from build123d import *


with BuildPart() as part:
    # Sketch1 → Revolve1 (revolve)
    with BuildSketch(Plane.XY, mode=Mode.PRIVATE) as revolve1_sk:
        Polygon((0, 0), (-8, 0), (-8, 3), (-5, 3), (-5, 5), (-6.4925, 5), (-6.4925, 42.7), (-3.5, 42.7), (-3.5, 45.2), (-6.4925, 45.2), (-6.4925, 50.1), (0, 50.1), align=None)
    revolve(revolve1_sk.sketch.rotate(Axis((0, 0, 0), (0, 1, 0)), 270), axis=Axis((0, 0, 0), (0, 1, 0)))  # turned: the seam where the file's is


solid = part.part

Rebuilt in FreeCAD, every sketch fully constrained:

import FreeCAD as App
import Part
import Sketcher

V = App.Vector
Q = App.Units.Quantity


def add_polygon(sketch, points):
    """Adds a closed chain of lines whose ends are joined by coincident constraints."""
    first, n = sketch.GeometryCount, len(points)
    for a, b in zip(points, points[1:] + points[:1]):
        sketch.addGeometry(Part.LineSegment(App.Vector(*a, 0), App.Vector(*b, 0)), False)
    for i in range(n):
        sketch.addConstraint(Sketcher.Constraint("Coincident", first + i, 2, first + (i + 1) % n, 1))

doc = App.newDocument("Part")
params = doc.addObject("Spreadsheet::Sheet", "Params")
for row, (alias, value) in enumerate([
    ("sketch1_width", "8 mm"),
    ("sketch1_width2", "3 mm"),
    ("sketch1_height", "2 mm"),
    ("sketch1_height2", "50.1 mm"),
    ("sketch1_height3", "4.9 mm"),
    ("revolution_angle", "360 deg"),
], start=1):
    params.set(f"A{row}", alias)
    params.set(f"B{row}", "=" + value)
    params.setAlias(f"B{row}", alias)

body = doc.addObject("PartDesign::Body", "Body")

sketch1 = body.newObject("Sketcher::SketchObject", "Sketch")
sketch1.AttachmentSupport = (doc.getObject("XY_Plane"), [""])
sketch1.MapMode = "FlatFace"
add_polygon(sketch1, [(-8, 0), (0, 0), (0, 50.1), (-6.5, 50.1), (-6.5, 45.2), (-3.5, 45.2), (-3.5, 42.7), (-6.5, 42.7), (-6.5, 5), (-5, 5), (-5, 3), (-8, 3)])
sketch1.addConstraint([
    Sketcher.Constraint("Horizontal", 0),
    Sketcher.Constraint("Vertical", 1),
    Sketcher.Constraint("Horizontal", 2),
    Sketcher.Constraint("Vertical", 3),
    Sketcher.Constraint("Horizontal", 4),
    Sketcher.Constraint("Vertical", 5),
    Sketcher.Constraint("Horizontal", 6),
    Sketcher.Constraint("Vertical", 7),
    Sketcher.Constraint("Horizontal", 8),
    Sketcher.Constraint("Vertical", 9),
    Sketcher.Constraint("Horizontal", 10),
    Sketcher.Constraint("Vertical", 11),
    Sketcher.Constraint("Coincident", 0, 2, -1, 1),
    Sketcher.Constraint("Vertical", 3, 2, 6, 2),
    Sketcher.Constraint("Equal", 10, 11),
    Sketcher.Constraint("DistanceX", 0, 1, 0, 2, Q("8 mm")),
    Sketcher.Constraint("DistanceX", 10, 2, 10, 1, Q("3 mm")),
    Sketcher.Constraint("DistanceY", 9, 2, 9, 1, Q("2 mm")),
    Sketcher.Constraint("DistanceY", 1, 1, 1, 2, Q("50.1 mm")),
    Sketcher.Constraint("DistanceY", 3, 2, 3, 1, Q("4.9 mm")),
    Sketcher.Constraint("DistanceY", 5, 2, 5, 1, Q("2.5 mm")),
    Sketcher.Constraint("DistanceX", 4, 2, -1, 1, Q("3.5 mm")),
    Sketcher.Constraint("DistanceX", 2, 2, 2, 1, Q("6.4925 mm")),
])
sketch1.setExpression("Constraints[27]", "Params.sketch1_width")
sketch1.setExpression("Constraints[28]", "Params.sketch1_width2")
sketch1.setExpression("Constraints[29]", "Params.sketch1_height")
sketch1.setExpression("Constraints[30]", "Params.sketch1_height2")
sketch1.setExpression("Constraints[31]", "Params.sketch1_height3")
revolution = body.newObject("PartDesign::Revolution", "Revolution")
revolution.Profile = sketch1
revolution.ReferenceAxis = (sketch1, ["V_Axis"])
revolution.setExpression("Angle", "Params.revolution_angle")

doc.recompute()
